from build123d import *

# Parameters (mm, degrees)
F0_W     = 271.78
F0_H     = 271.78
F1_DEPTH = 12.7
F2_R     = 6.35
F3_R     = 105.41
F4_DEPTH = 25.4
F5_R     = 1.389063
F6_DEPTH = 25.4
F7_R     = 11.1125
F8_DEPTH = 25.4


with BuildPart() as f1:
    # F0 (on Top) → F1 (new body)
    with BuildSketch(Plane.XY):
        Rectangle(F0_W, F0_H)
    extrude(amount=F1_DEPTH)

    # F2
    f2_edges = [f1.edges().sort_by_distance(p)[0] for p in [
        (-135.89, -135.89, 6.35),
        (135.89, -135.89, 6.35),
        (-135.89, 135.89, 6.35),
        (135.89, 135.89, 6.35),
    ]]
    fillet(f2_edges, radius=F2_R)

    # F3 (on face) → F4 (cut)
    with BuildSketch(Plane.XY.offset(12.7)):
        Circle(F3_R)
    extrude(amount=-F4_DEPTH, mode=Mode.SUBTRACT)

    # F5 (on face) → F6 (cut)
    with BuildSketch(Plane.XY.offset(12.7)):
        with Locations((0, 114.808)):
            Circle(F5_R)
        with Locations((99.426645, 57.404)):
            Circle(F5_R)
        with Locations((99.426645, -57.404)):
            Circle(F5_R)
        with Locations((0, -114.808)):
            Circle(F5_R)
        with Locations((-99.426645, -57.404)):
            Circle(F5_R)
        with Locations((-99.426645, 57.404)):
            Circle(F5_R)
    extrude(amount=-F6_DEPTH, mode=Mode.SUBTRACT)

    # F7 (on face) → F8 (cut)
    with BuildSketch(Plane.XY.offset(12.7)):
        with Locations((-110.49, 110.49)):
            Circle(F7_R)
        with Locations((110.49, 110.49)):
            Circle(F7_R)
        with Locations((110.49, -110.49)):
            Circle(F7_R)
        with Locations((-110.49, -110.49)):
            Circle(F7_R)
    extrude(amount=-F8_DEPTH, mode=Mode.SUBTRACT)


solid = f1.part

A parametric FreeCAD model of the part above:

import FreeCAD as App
import Part
import Sketcher
from FreeCAD import Vector
Q = App.Units.Quantity


def edges_at(feature, points):
    """Names of the edges that pass closest to the given points."""
    edges = feature.Shape.Edges
    near = lambda p: min(range(len(edges)), key=lambda i: edges[i].distToShape(Part.Vertex(*p))[0])
    return sorted({f"Edge{near(p) + 1}" for p in points})

doc = App.newDocument("Part")
body = doc.addObject("PartDesign::Body", "Body")

# Sketch on XY plane
sketch1 = body.newObject("Sketcher::SketchObject", "Sketch")
sketch1.AttachmentSupport = (doc.getObject("XY_Plane"), [""])
sketch1.MapMode = "FlatFace"
sketch1.addGeometry([
    Part.LineSegment(Vector(-136, 136, 0), Vector(-136, -136, 0)),
    Part.LineSegment(Vector(-136, -136, 0), Vector(136, -136, 0)),
    Part.LineSegment(Vector(136, -136, 0), Vector(136, 136, 0)),
    Part.LineSegment(Vector(136, 136, 0), Vector(-136, 136, 0)),
], False)
sketch1.addConstraint([
    Sketcher.Constraint("Coincident", 0, 2, 1, 1),
    Sketcher.Constraint("Coincident", 1, 2, 2, 1),
    Sketcher.Constraint("Coincident", 2, 2, 3, 1),
    Sketcher.Constraint("Coincident", 3, 2, 0, 1),
    Sketcher.Constraint("Vertical", 0),
    Sketcher.Constraint("Horizontal", 1),
    Sketcher.Constraint("Vertical", 2),
    Sketcher.Constraint("Horizontal", 3),
    Sketcher.Constraint("Symmetric", 0, 2, 2, 2, -1, 1),
    Sketcher.Constraint("Equal", 3, 0),
    Sketcher.Constraint("DistanceX", 1, 1, 1, 2, Q("10.7 in")),
])
pad1 = body.newObject("PartDesign::Pad", "Pad")
pad1.Profile = sketch1
pad1.Length = Q("0.5 in")
doc.recompute()

fillet = body.newObject("PartDesign::Fillet", "Fillet")
fillet.Base = (pad1, edges_at(pad1, [
    (-135.89, -135.89, 6.35),
    (135.89, -135.89, 6.35),
    (-135.89, 135.89, 6.35),
    (135.89, 135.89, 6.35),
]))
fillet.Radius = Q("0.25 in")

# Sketch on XY plane
sketch2 = body.newObject("Sketcher::SketchObject", "Sketch001")
sketch2.AttachmentSupport = (doc.getObject("XY_Plane"), [""])
sketch2.MapMode = "FlatFace"
sketch2.AttachmentOffset = App.Placement(Vector(0, 0, 0.5 * 25.4), App.Rotation())
sketch2.addGeometry(Part.Circle(Vector(0, 0, 0), Vector(0, 0, 1), 105), False)
sketch2.addConstraint([
    Sketcher.Constraint("Coincident", 0, 3, -1, 1),
    Sketcher.Constraint("Diameter", 0, Q("8.3 in")),
])
pocket1 = body.newObject("PartDesign::Pocket", "Pocket")
pocket1.Profile = sketch2
pocket1.Length = Q("1 in")

# Sketch on XY plane
sketch3 = body.newObject("Sketcher::SketchObject", "Sketch002")
sketch3.AttachmentSupport = (doc.getObject("XY_Plane"), [""])
sketch3.MapMode = "FlatFace"
sketch3.AttachmentOffset = App.Placement(Vector(0, 0, 0.5 * 25.4), App.Rotation())
sketch3.addGeometry([
    Part.Circle(Vector(0, 114.8, 0), Vector(0, 0, 1), 1.4),  # 0
    Part.Circle(Vector(99.4, 57.4, 0), Vector(0, 0, 1), 1.4),  # 1
    Part.Circle(Vector(99.4, -57.4, 0), Vector(0, 0, 1), 1.4),  # 2
    Part.Circle(Vector(0, -114.8, 0), Vector(0, 0, 1), 1.4),  # 3
    Part.Circle(Vector(-99.4, -57.4, 0), Vector(0, 0, 1), 1.4),  # 4
    Part.Circle(Vector(-99.4, 57.4, 0), Vector(0, 0, 1), 1.4),  # 5
], False)
sketch3.addConstraint([
    Sketcher.Constraint("Equal", 0, 1),
    Sketcher.Constraint("Equal", 1, 2),
    Sketcher.Constraint("Equal", 2, 3),
    Sketcher.Constraint("Equal", 3, 4),
    Sketcher.Constraint("Equal", 4, 5),
    Sketcher.Constraint("Symmetric", 0, 3, 3, 3, -1, 1),
    Sketcher.Constraint("Symmetric", 1, 3, 4, 3, -1, 1),
    Sketcher.Constraint("Symmetric", 2, 3, 5, 3, -1, 1),
    Sketcher.Constraint("Symmetric", 2, 3, 4, 3, -2),
    Sketcher.Constraint("PointOnObject", 0, 3, -2),
    Sketcher.Constraint("Diameter", 0, Q("0.109375 in")),
    Sketcher.Constraint("DistanceY", -1, 1, 0, 3, Q("4.52 in")),
    Sketcher.Constraint("DistanceY", -1, 1, 1, 3, Q("2.26 in")),
    Sketcher.Constraint("DistanceX", 4, 3, 2, 3, 198.85329),
])
pocket2 = body.newObject("PartDesign::Pocket", "Pocket001")
pocket2.Profile = sketch3
pocket2.Length = Q("1 in")

# Sketch on XY plane
sketch4 = body.newObject("Sketcher::SketchObject", "Sketch003")
sketch4.AttachmentSupport = (doc.getObject("XY_Plane"), [""])
sketch4.MapMode = "FlatFace"
sketch4.AttachmentOffset = App.Placement(Vector(0, 0, 0.5 * 25.4), App.Rotation())
sketch4.addGeometry([
    Part.Circle(Vector(-110, 110, 0), Vector(0, 0, 1), 11),
    Part.Circle(Vector(110, 110, 0), Vector(0, 0, 1), 11),
    Part.Circle(Vector(110, -110, 0), Vector(0, 0, 1), 11),
    Part.Circle(Vector(-110, -110, 0), Vector(0, 0, 1), 11),
], False)
sketch4.addConstraint([
    Sketcher.Constraint("Equal", 0, 1),
    Sketcher.Constraint("Equal", 1, 2),
    Sketcher.Constraint("Equal", 2, 3),
    Sketcher.Constraint("Symmetric", 0, 3, 2, 3, -1, 1),
    Sketcher.Constraint("Symmetric", 1, 3, 3, 3, -1, 1),
    Sketcher.Constraint("Symmetric", 0, 3, 1, 3, -2),
    Sketcher.Constraint("Diameter", 0, Q("0.875 in")),
    Sketcher.Constraint("DistanceX", 0, 3, 1, 3, Q("8.7 in")),
    Sketcher.Constraint("DistanceY", 2, 3, 1, 3, Q("8.7 in")),
])
pocket3 = body.newObject("PartDesign::Pocket", "Pocket002")
pocket3.Profile = sketch4
pocket3.Length = Q("1 in")

doc.recompute()
